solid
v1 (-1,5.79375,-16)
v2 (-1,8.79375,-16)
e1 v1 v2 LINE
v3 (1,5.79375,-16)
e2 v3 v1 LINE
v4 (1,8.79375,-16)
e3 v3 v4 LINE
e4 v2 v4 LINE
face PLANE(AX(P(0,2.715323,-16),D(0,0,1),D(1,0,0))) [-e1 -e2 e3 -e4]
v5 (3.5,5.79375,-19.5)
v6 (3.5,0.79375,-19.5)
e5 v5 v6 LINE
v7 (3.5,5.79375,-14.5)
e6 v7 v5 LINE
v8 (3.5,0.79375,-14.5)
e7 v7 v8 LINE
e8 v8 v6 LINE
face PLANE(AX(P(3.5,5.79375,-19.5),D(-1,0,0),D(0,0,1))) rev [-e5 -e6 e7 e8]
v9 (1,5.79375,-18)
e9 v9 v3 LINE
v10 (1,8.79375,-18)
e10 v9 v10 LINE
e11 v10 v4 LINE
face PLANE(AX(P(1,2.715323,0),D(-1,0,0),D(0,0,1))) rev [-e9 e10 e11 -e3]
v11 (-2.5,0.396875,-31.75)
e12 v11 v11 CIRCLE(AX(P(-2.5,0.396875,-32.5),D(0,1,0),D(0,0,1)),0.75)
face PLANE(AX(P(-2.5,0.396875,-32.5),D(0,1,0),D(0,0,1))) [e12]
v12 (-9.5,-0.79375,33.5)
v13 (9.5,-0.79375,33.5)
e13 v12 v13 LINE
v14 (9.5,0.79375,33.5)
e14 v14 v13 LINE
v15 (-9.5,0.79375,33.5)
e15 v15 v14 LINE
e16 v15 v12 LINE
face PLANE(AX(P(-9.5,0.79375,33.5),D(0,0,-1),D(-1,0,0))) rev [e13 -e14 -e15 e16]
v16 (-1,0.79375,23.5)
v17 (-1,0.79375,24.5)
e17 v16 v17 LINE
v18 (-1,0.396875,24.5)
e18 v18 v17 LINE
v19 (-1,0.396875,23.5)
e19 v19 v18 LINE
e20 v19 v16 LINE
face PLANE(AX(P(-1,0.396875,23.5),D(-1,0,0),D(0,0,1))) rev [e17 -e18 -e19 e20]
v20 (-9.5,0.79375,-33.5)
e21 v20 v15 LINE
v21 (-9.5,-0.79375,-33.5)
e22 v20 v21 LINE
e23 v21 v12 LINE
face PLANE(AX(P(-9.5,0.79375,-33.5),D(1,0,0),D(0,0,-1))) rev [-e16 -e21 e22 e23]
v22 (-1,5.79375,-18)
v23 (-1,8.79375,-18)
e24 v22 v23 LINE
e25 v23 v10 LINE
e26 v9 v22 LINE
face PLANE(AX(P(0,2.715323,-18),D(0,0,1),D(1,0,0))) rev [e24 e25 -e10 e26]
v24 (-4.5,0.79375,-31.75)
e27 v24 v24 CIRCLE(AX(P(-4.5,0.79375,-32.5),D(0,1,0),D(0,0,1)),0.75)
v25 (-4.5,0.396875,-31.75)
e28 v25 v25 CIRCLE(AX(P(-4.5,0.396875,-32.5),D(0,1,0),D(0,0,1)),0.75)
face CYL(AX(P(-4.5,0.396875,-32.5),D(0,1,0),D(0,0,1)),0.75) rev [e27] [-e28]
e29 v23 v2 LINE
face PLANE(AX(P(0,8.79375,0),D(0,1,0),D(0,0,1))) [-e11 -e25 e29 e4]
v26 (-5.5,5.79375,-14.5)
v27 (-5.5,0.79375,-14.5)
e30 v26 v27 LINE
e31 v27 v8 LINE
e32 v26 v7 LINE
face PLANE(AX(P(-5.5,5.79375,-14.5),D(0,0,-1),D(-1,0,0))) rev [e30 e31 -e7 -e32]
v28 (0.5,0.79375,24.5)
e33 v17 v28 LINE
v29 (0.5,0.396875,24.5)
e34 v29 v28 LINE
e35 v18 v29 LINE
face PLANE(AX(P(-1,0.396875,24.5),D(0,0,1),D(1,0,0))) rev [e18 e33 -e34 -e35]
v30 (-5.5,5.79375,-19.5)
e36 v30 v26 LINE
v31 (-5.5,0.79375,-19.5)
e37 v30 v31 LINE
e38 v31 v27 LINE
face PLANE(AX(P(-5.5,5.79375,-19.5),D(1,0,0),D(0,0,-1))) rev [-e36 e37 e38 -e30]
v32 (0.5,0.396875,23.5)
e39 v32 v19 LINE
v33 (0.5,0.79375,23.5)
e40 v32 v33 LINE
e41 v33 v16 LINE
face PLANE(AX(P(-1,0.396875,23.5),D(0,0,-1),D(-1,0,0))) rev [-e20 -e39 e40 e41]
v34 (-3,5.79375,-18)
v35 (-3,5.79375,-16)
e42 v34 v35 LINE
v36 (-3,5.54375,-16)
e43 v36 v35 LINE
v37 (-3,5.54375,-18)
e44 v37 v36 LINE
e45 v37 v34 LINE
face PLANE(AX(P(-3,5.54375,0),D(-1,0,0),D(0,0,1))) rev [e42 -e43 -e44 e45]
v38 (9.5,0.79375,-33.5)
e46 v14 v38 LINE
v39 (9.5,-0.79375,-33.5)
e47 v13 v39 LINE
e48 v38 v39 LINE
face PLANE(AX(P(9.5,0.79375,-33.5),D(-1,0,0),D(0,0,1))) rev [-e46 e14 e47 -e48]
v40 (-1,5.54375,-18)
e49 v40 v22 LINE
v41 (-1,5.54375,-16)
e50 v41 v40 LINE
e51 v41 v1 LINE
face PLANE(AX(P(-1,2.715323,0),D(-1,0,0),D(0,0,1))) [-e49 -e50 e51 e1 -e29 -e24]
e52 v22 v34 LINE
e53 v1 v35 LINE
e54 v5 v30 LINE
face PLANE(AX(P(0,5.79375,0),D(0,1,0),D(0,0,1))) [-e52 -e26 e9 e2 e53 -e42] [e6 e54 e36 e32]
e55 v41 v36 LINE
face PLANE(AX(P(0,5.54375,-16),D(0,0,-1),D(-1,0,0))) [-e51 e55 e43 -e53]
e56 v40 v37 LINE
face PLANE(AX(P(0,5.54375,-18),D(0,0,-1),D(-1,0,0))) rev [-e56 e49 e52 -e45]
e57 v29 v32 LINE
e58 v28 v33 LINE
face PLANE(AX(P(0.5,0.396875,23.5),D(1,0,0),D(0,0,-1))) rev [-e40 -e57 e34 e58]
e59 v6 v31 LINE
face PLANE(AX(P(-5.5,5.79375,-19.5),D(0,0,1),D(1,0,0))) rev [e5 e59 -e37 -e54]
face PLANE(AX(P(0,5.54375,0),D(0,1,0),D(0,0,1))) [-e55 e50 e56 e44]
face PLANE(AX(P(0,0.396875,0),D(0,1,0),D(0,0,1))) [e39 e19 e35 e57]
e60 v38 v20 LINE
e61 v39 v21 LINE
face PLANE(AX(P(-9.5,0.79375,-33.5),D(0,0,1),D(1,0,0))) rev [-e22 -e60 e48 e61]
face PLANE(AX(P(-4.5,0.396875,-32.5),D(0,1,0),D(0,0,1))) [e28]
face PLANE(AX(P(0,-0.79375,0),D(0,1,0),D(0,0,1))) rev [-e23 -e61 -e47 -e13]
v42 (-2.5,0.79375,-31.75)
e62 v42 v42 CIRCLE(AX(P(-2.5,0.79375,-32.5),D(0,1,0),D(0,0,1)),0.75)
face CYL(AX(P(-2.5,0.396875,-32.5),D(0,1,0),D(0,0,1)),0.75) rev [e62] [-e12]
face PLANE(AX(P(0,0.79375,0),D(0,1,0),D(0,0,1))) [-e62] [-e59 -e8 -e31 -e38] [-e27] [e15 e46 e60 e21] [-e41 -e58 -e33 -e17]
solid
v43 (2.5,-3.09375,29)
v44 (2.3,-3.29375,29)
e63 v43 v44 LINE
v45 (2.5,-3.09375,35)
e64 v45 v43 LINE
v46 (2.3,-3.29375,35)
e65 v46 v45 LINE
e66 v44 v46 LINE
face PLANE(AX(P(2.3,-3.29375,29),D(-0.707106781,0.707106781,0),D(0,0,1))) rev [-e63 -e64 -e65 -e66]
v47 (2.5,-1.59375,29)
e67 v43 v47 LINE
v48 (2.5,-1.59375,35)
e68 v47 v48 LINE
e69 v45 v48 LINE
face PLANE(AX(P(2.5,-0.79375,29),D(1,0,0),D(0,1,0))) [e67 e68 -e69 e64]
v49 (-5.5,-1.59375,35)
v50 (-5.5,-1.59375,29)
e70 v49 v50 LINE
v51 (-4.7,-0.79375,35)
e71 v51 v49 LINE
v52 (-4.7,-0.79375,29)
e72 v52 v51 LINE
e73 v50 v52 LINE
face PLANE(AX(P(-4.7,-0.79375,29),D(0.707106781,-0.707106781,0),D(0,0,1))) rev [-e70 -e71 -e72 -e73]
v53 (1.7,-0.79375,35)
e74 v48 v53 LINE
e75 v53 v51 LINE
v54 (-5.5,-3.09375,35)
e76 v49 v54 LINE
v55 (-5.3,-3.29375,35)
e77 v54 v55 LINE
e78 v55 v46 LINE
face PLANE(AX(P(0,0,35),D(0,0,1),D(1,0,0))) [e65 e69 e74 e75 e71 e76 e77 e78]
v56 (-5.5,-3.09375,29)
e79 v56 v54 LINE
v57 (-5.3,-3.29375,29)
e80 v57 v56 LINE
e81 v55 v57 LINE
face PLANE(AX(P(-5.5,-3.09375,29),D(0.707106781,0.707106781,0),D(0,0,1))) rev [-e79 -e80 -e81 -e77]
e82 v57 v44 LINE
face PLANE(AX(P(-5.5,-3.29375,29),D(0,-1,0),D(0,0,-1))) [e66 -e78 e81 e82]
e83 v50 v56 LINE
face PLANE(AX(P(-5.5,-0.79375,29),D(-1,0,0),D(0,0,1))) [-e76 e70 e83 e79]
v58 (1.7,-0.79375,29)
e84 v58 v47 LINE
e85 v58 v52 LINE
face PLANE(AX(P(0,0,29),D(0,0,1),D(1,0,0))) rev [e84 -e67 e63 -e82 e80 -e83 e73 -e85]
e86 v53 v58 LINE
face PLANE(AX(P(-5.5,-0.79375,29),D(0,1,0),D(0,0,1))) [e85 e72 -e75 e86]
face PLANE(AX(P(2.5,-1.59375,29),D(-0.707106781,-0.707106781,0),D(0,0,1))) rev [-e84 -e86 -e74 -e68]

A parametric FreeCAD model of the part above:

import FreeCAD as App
import Part
import Sketcher
from FreeCAD import Vector


def edges_at(feature, points):
    """Names of the edges that pass closest to the given points."""
    edges = feature.Shape.Edges
    near = lambda p: min(range(len(edges)), key=lambda i: edges[i].distToShape(Part.Vertex(*p))[0])
    return sorted({f"Edge{near(p) + 1}" for p in points})

doc = App.newDocument("Part")
body = doc.addObject("PartDesign::Body", "Body")

# Sketch on XZ plane
sketch1 = doc.addObject("Sketcher::SketchObject", "Sketch")
body.addObject(sketch1)
sketch1.AttachmentSupport = (doc.XZ_Plane, [""])
sketch1.MapMode = "FlatFace"
sketch1.addGeometry(Part.LineSegment(Vector(-9.5, -33.5, 0), Vector(-9.5, 33.5, 0)), False)
sketch1.addGeometry(Part.LineSegment(Vector(-9.5, 33.5, 0), Vector(9.5, 33.5, 0)), False)
sketch1.addGeometry(Part.LineSegment(Vector(9.5, 33.5, 0), Vector(9.5, -33.5, 0)), False)
sketch1.addGeometry(Part.LineSegment(Vector(9.5, -33.5, 0), Vector(-9.5, -33.5, 0)), False)
sketch1.addConstraint(Sketcher.Constraint("Coincident", 0, 2, 1, 1))
sketch1.addConstraint(Sketcher.Constraint("Coincident", 1, 2, 2, 1))
sketch1.addConstraint(Sketcher.Constraint("Coincident", 2, 2, 3, 1))
sketch1.addConstraint(Sketcher.Constraint("Coincident", 3, 2, 0, 1))
sketch1.addConstraint(Sketcher.Constraint("Vertical", 0))
sketch1.addConstraint(Sketcher.Constraint("Horizontal", 1))
sketch1.addConstraint(Sketcher.Constraint("Vertical", 2))
sketch1.addConstraint(Sketcher.Constraint("Horizontal", 3))
sketch1.addConstraint(Sketcher.Constraint("Symmetric", 0, 2, 2, 2, -1, 1))
sketch1.addConstraint(Sketcher.Constraint("DistanceX", 1, 1, 1, 2, 19.0))
sketch1.addConstraint(Sketcher.Constraint("DistanceY", 0, 1, 0, 2, 67.0))
pad1 = doc.addObject("PartDesign::Pad", "Pad")
body.addObject(pad1)
pad1.Profile = sketch1
pad1.Length = 1.5875
pad1.Midplane = True

# Sketch on XZ plane
sketch2 = doc.addObject("Sketcher::SketchObject", "Sketch001")
body.addObject(sketch2)
sketch2.AttachmentSupport = (doc.XZ_Plane, [""])
sketch2.MapMode = "FlatFace"
sketch2.AttachmentOffset = App.Placement(Vector(0, 0, -0.79375), App.Rotation())
sketch2.addGeometry(Part.LineSegment(Vector(-5.5, -19.5, 0), Vector(-5.5, -14.5, 0)), False)
sketch2.addGeometry(Part.LineSegment(Vector(-5.5, -14.5, 0), Vector(3.5, -14.5, 0)), False)
sketch2.addGeometry(Part.LineSegment(Vector(3.5, -14.5, 0), Vector(3.5, -19.5, 0)), False)
sketch2.addGeometry(Part.LineSegment(Vector(3.5, -19.5, 0), Vector(-5.5, -19.5, 0)), False)
sketch2.addConstraint(Sketcher.Constraint("Coincident", 0, 2, 1, 1))
sketch2.addConstraint(Sketcher.Constraint("Coincident", 1, 2, 2, 1))
sketch2.addConstraint(Sketcher.Constraint("Coincident", 2, 2, 3, 1))
sketch2.addConstraint(Sketcher.Constraint("Coincident", 3, 2, 0, 1))
sketch2.addConstraint(Sketcher.Constraint("Vertical", 0))
sketch2.addConstraint(Sketcher.Constraint("Horizontal", 1))
sketch2.addConstraint(Sketcher.Constraint("Vertical", 2))
sketch2.addConstraint(Sketcher.Constraint("Horizontal", 3))
sketch2.addConstraint(Sketcher.Constraint("DistanceX", 1, 1, 1, 2, 9.0))
sketch2.addConstraint(Sketcher.Constraint("DistanceY", 0, 1, 0, 2, 5.0))
sketch2.addConstraint(Sketcher.Constraint("DistanceX", 0, 2, -1, 1, 5.5))
sketch2.addConstraint(Sketcher.Constraint("DistanceY", 0, 2, -1, 1, 14.5))
pad2 = doc.addObject("PartDesign::Pad", "Pad001")
body.addObject(pad2)
pad2.Profile = sketch2
pad2.Length = 5
pad2.Reversed = True

# Sketch on XZ plane
sketch3 = doc.addObject("Sketcher::SketchObject", "Sketch002")
body.addObject(sketch3)
sketch3.AttachmentSupport = (doc.XZ_Plane, [""])
sketch3.MapMode = "FlatFace"
sketch3.AttachmentOffset = App.Placement(Vector(0, 0, -5.79375), App.Rotation())
sketch3.addGeometry(Part.LineSegment(Vector(-3, -18, 0), Vector(-3, -16, 0)), False)
sketch3.addGeometry(Part.LineSegment(Vector(-3, -16, 0), Vector(1, -16, 0)), False)
sketch3.addGeometry(Part.LineSegment(Vector(1, -16, 0), Vector(1, -18, 0)), False)
sketch3.addGeometry(Part.LineSegment(Vector(1, -18, 0), Vector(-3, -18, 0)), False)
sketch3.addConstraint(Sketcher.Constraint("Coincident", 0, 2, 1, 1))
sketch3.addConstraint(Sketcher.Constraint("Coincident", 1, 2, 2, 1))
sketch3.addConstraint(Sketcher.Constraint("Coincident", 2, 2, 3, 1))
sketch3.addConstraint(Sketcher.Constraint("Coincident", 3, 2, 0, 1))
sketch3.addConstraint(Sketcher.Constraint("Vertical", 0))
sketch3.addConstraint(Sketcher.Constraint("Horizontal", 1))
sketch3.addConstraint(Sketcher.Constraint("Vertical", 2))
sketch3.addConstraint(Sketcher.Constraint("Horizontal", 3))
sketch3.addConstraint(Sketcher.Constraint("DistanceX", 1, 1, 1, 2, 4.0))
sketch3.addConstraint(Sketcher.Constraint("DistanceY", 0, 1, 0, 2, 2.0))
sketch3.addConstraint(Sketcher.Constraint("DistanceX", 0, 2, -1, 1, 3.0))
sketch3.addConstraint(Sketcher.Constraint("DistanceY", 0, 2, -1, 1, 16.0))
pocket1 = doc.addObject("PartDesign::Pocket", "Pocket")
body.addObject(pocket1)
pocket1.Profile = sketch3
pocket1.Length = 0.25
pocket1.Reversed = True

# Sketch on XZ plane
sketch4 = doc.addObject("Sketcher::SketchObject", "Sketch003")
body.addObject(sketch4)
sketch4.AttachmentSupport = (doc.XZ_Plane, [""])
sketch4.MapMode = "FlatFace"
sketch4.AttachmentOffset = App.Placement(Vector(0, 0, -5.79375), App.Rotation())
sketch4.addGeometry(Part.LineSegment(Vector(-1, -18, 0), Vector(-1, -16, 0)), False)
sketch4.addGeometry(Part.LineSegment(Vector(-1, -16, 0), Vector(1, -16, 0)), False)
sketch4.addGeometry(Part.LineSegment(Vector(1, -16, 0), Vector(1, -18, 0)), False)
sketch4.addGeometry(Part.LineSegment(Vector(1, -18, 0), Vector(-1, -18, 0)), False)
sketch4.addConstraint(Sketcher.Constraint("Coincident", 0, 2, 1, 1))
sketch4.addConstraint(Sketcher.Constraint("Coincident", 1, 2, 2, 1))
sketch4.addConstraint(Sketcher.Constraint("Coincident", 2, 2, 3, 1))
sketch4.addConstraint(Sketcher.Constraint("Coincident", 3, 2, 0, 1))
sketch4.addConstraint(Sketcher.Constraint("Vertical", 0))
sketch4.addConstraint(Sketcher.Constraint("Horizontal", 1))
sketch4.addConstraint(Sketcher.Constraint("Vertical", 2))
sketch4.addConstraint(Sketcher.Constraint("Horizontal", 3))
sketch4.addConstraint(Sketcher.Constraint("Equal", 3, 0))
sketch4.addConstraint(Sketcher.Constraint("DistanceX", 1, 1, 1, 2, 2.0))
sketch4.addConstraint(Sketcher.Constraint("DistanceX", 0, 2, -1, 1, 1.0))
sketch4.addConstraint(Sketcher.Constraint("DistanceY", 0, 2, -1, 1, 16.0))
pad3 = doc.addObject("PartDesign::Pad", "Pad002")
body.addObject(pad3)
pad3.Profile = sketch4
pad3.Type = "TwoLengths"
pad3.Length = 3
pad3.Length2 = 6.5875
pad3.Reversed = True

# Sketch on XZ plane
sketch5 = doc.addObject("Sketcher::SketchObject", "Sketch004")
body.addObject(sketch5)
sketch5.AttachmentSupport = (doc.XZ_Plane, [""])
sketch5.MapMode = "FlatFace"
sketch5.AttachmentOffset = App.Placement(Vector(0, 0, -0.79375), App.Rotation())
sketch5.addGeometry(Part.Circle(Vector(-4.5, -32.5, 0), Vector(0, 0, 1), 0.75), False)
sketch5.addGeometry(Part.Circle(Vector(-2.5, -32.5, 0), Vector(0, 0, 1), 0.75), False)
sketch5.addGeometry(Part.LineSegment(Vector(-1, 23.5, 0), Vector(-1, 24.5, 0)), False)
sketch5.addGeometry(Part.LineSegment(Vector(-1, 24.5, 0), Vector(0.5, 24.5, 0)), False)
sketch5.addGeometry(Part.LineSegment(Vector(0.5, 24.5, 0), Vector(0.5, 23.5, 0)), False)
sketch5.addGeometry(Part.LineSegment(Vector(0.5, 23.5, 0), Vector(-1, 23.5, 0)), False)
sketch5.addConstraint(Sketcher.Constraint("Coincident", 2, 2, 3, 1))
sketch5.addConstraint(Sketcher.Constraint("Coincident", 3, 2, 4, 1))
sketch5.addConstraint(Sketcher.Constraint("Coincident", 4, 2, 5, 1))
sketch5.addConstraint(Sketcher.Constraint("Coincident", 5, 2, 2, 1))
sketch5.addConstraint(Sketcher.Constraint("Vertical", 2))
sketch5.addConstraint(Sketcher.Constraint("Horizontal", 3))
sketch5.addConstraint(Sketcher.Constraint("Vertical", 4))
sketch5.addConstraint(Sketcher.Constraint("Horizontal", 5))
sketch5.addConstraint(Sketcher.Constraint("Equal", 0, 1))
sketch5.addConstraint(Sketcher.Constraint("Horizontal", 0, 3, 1, 3))
sketch5.addConstraint(Sketcher.Constraint("Diameter", 0, 1.5))
sketch5.addConstraint(Sketcher.Constraint("DistanceY", 2, 1, 2, 2, 1.0))
sketch5.addConstraint(Sketcher.Constraint("DistanceX", 3, 1, 3, 2, 1.5))
sketch5.addConstraint(Sketcher.Constraint("DistanceX", 2, 2, -1, 1, 1.0))
sketch5.addConstraint(Sketcher.Constraint("DistanceX", 0, 3, 1, 3, 2.0))
sketch5.addConstraint(Sketcher.Constraint("DistanceY", 1, 3, 2, 2, 57.0))
sketch5.addConstraint(Sketcher.Constraint("DistanceX", 1, 3, 3, 2, 3.0))
sketch5.addConstraint(Sketcher.Constraint("DistanceY", 0, 3, -1, 1, 32.5))
pocket2 = doc.addObject("PartDesign::Pocket", "Pocket001")
body.addObject(pocket2)
pocket2.Profile = sketch5
pocket2.Length = 0.396875
pocket2.Reversed = True
body2 = doc.addObject("PartDesign::Body", "Body001")

# Sketch on XY plane
sketch6 = doc.addObject("Sketcher::SketchObject", "Sketch005")
body2.addObject(sketch6)
sketch6.AttachmentSupport = (doc.getObject("XY_Plane001"), [""])
sketch6.MapMode = "FlatFace"
sketch6.AttachmentOffset = App.Placement(Vector(0, 0, 35), App.Rotation())
sketch6.addGeometry(Part.LineSegment(Vector(-5.5, -0.79375, 0), Vector(-5.5, -3.29375, 0)), False)
sketch6.addGeometry(Part.LineSegment(Vector(-5.5, -3.29375, 0), Vector(2.5, -3.29375, 0)), False)
sketch6.addGeometry(Part.LineSegment(Vector(2.5, -3.29375, 0), Vector(2.5, -0.79375, 0)), False)
sketch6.addGeometry(Part.LineSegment(Vector(2.5, -0.79375, 0), Vector(-5.5, -0.79375, 0)), False)
sketch6.addConstraint(Sketcher.Constraint("Coincident", 0, 2, 1, 1))
sketch6.addConstraint(Sketcher.Constraint("Coincident", 1, 2, 2, 1))
sketch6.addConstraint(Sketcher.Constraint("Coincident", 2, 2, 3, 1))
sketch6.addConstraint(Sketcher.Constraint("Coincident", 3, 2, 0, 1))
sketch6.addConstraint(Sketcher.Constraint("Vertical", 0))
sketch6.addConstraint(Sketcher.Constraint("Horizontal", 1))
sketch6.addConstraint(Sketcher.Constraint("Vertical", 2))
sketch6.addConstraint(Sketcher.Constraint("Horizontal", 3))
sketch6.addConstraint(Sketcher.Constraint("DistanceX", 1, 1, 1, 2, 8.0))
sketch6.addConstraint(Sketcher.Constraint("DistanceY", 0, 2, 0, 1, 2.5))
sketch6.addConstraint(Sketcher.Constraint("DistanceX", 0, 2, -1, 1, 5.5))
sketch6.addConstraint(Sketcher.Constraint("DistanceY", 0, 2, -1, 1, 3.29375))
pad4 = doc.addObject("PartDesign::Pad", "Pad003")
body2.addObject(pad4)
pad4.Profile = sketch6
pad4.Length = 6
pad4.Reversed = True
doc.recompute()

chamfer = doc.addObject("PartDesign::Chamfer", "Chamfer")
body2.addObject(chamfer)
chamfer.Base = (pad4, edges_at(pad4, [(-5.5, -0.794, 32), (2.5, -0.794, 32)]))
chamfer.Size = 0.8
doc.recompute()

chamfer2 = doc.addObject("PartDesign::Chamfer", "Chamfer001")
body2.addObject(chamfer2)
chamfer2.Base = (chamfer, edges_at(chamfer, [(2.5, -3.294, 32), (-5.5, -3.294, 32)]))
chamfer2.Size = 0.2

doc.recompute()
